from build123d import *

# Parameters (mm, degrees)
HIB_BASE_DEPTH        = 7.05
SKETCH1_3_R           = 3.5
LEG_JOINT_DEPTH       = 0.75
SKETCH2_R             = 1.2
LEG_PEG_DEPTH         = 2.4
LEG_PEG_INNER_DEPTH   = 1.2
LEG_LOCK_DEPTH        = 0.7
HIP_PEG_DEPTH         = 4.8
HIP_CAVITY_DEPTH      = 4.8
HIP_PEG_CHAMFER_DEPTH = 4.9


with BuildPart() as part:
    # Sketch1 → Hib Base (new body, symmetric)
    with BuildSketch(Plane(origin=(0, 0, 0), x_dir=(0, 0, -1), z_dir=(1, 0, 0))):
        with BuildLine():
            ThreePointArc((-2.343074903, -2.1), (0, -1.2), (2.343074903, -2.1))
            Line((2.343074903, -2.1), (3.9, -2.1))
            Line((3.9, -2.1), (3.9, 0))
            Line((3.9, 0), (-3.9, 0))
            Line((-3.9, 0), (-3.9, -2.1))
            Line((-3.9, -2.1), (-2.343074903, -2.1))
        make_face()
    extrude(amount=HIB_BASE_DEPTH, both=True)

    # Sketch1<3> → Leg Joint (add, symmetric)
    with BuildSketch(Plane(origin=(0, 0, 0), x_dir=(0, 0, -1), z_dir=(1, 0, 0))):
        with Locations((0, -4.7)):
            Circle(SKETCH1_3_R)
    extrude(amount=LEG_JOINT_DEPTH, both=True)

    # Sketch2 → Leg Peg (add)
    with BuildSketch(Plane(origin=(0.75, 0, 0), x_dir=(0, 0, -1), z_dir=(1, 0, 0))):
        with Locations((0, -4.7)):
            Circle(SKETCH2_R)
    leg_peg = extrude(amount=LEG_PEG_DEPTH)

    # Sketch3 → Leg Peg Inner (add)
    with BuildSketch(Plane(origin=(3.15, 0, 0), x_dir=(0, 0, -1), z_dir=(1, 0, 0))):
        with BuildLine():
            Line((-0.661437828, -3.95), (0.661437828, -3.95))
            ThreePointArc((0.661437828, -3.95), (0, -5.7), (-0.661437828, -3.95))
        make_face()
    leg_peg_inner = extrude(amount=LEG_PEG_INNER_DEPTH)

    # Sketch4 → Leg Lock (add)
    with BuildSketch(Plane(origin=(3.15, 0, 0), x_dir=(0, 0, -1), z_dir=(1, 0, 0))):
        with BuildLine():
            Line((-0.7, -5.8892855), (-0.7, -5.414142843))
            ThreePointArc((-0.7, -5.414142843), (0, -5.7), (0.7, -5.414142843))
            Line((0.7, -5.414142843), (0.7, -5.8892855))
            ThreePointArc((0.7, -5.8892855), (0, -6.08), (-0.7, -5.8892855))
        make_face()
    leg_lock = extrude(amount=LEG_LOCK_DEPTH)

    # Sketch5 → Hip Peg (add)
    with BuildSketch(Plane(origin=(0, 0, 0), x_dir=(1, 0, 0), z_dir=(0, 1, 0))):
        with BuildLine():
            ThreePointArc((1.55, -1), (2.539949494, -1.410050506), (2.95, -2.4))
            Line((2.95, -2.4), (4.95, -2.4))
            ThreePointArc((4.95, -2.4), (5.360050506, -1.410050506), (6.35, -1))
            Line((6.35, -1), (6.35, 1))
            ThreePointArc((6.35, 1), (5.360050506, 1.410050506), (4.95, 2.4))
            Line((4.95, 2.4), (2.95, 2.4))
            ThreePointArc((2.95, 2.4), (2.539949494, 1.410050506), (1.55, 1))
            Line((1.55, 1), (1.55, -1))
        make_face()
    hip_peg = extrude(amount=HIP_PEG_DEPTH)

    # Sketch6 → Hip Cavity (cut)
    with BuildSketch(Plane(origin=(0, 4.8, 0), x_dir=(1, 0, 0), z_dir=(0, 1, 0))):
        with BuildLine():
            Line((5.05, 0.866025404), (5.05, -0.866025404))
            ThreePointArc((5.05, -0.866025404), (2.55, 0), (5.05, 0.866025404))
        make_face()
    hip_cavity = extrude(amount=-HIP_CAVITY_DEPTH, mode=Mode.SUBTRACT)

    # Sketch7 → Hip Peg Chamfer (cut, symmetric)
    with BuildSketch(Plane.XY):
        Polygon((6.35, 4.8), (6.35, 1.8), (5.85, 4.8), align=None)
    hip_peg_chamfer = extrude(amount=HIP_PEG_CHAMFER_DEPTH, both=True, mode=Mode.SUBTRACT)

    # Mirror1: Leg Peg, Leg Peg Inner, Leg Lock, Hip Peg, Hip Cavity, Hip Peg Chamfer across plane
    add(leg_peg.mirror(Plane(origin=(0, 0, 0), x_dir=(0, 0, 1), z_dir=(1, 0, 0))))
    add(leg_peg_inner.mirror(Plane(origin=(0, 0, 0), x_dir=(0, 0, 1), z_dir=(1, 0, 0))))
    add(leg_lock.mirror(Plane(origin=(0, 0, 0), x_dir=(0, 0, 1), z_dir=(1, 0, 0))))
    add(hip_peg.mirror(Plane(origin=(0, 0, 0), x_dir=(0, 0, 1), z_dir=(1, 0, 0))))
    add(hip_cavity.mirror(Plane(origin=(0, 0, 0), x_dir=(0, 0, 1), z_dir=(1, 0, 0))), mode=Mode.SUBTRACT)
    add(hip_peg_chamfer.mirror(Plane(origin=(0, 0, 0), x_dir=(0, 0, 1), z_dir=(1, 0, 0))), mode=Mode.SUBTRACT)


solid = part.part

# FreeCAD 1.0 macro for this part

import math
import FreeCAD as App
import Part
import Sketcher
Q = App.Units.Quantity

doc = App.newDocument("Part")
body = doc.addObject("PartDesign::Body", "Body")

sketch1 = body.newObject("Sketcher::SketchObject", "Sketch")
sketch1.AttachmentSupport = (doc.getObject("YZ_Plane"), [""])
sketch1.MapMode = "FlatFace"
sketch1.addGeometry([
    Part.ArcOfCircle(Part.Circle(App.Vector(-4.7, 0, 0), App.Vector(0, 0, 1), 3.5), math.radians(-42), math.radians(42)),
    Part.LineSegment(App.Vector(-2.1, -2.3, 0), App.Vector(-2.1, -3.9, 0)),
    Part.LineSegment(App.Vector(-2.1, -3.9, 0), App.Vector(0, -3.9, 0)),
    Part.LineSegment(App.Vector(0, -3.9, 0), App.Vector(0, 3.9, 0)),
    Part.LineSegment(App.Vector(0, 3.9, 0), App.Vector(-2.1, 3.9, 0)),
    Part.LineSegment(App.Vector(-2.1, 3.9, 0), App.Vector(-2.1, 2.3, 0)),
], False)
sketch1.addConstraint([
    Sketcher.Constraint("Coincident", 0, 1, 1, 1),
    Sketcher.Constraint("Coincident", 1, 2, 2, 1),
    Sketcher.Constraint("Coincident", 2, 2, 3, 1),
    Sketcher.Constraint("Coincident", 3, 2, 4, 1),
    Sketcher.Constraint("Coincident", 4, 2, 5, 1),
    Sketcher.Constraint("Coincident", 5, 2, 0, 2),
    Sketcher.Constraint("Vertical", 1),
    Sketcher.Constraint("Horizontal", 2),
    Sketcher.Constraint("Vertical", 3),
    Sketcher.Constraint("Horizontal", 4),
    Sketcher.Constraint("Vertical", 5),
    Sketcher.Constraint("Symmetric", 2, 2, 3, 2, -1, 1),
    Sketcher.Constraint("Symmetric", 0, 1, 5, 2, -1),
    Sketcher.Constraint("Radius", 0, Q("3.5 mm")),
    Sketcher.Constraint("DistanceX", 2, 1, 2, 2, Q("2.1 mm")),
    Sketcher.Constraint("DistanceY", 3, 1, 3, 2, Q("7.8 mm")),
    Sketcher.Constraint("DistanceX", 0, 3, -1, 1, Q("4.7 mm")),
])
pad1 = body.newObject("PartDesign::Pad", "Pad")
pad1.Profile = sketch1
pad1.Length = 14.1
pad1.Midplane = True

sketch2 = body.newObject("Sketcher::SketchObject", "Sketch001")
sketch2.AttachmentSupport = (doc.getObject("YZ_Plane"), [""])
sketch2.MapMode = "FlatFace"
sketch2.addGeometry(Part.Circle(App.Vector(-4.7, 0, 0), App.Vector(0, 0, 1), 3.5), False)
sketch2.addConstraint([
    Sketcher.Constraint("PointOnObject", 0, 3, -1),
    Sketcher.Constraint("Diameter", 0, Q("7 mm")),
    Sketcher.Constraint("DistanceX", 0, 3, -1, 1, Q("4.7 mm")),
])
pad2 = body.newObject("PartDesign::Pad", "Pad001")
pad2.Profile = sketch2
pad2.Length = 1.5
pad2.Midplane = True

sketch3 = body.newObject("Sketcher::SketchObject", "Sketch002")
sketch3.AttachmentSupport = (doc.getObject("YZ_Plane"), [""])
sketch3.MapMode = "FlatFace"
sketch3.AttachmentOffset = App.Placement(App.Vector(0, 0, 0.75), App.Rotation())
sketch3.addGeometry(Part.Circle(App.Vector(-4.7, 0, 0), App.Vector(0, 0, 1), 1.2), False)
sketch3.addConstraint([
    Sketcher.Constraint("PointOnObject", 0, 3, -1),
    Sketcher.Constraint("Diameter", 0, Q("2.4 mm")),
    Sketcher.Constraint("DistanceX", 0, 3, -1, 1, Q("4.7 mm")),
])
pad3 = body.newObject("PartDesign::Pad", "Pad002")
pad3.Profile = sketch3
pad3.Length = 2.4

sketch4 = body.newObject("Sketcher::SketchObject", "Sketch003")
sketch4.AttachmentSupport = (doc.getObject("YZ_Plane"), [""])
sketch4.MapMode = "FlatFace"
sketch4.AttachmentOffset = App.Placement(App.Vector(0, 0, 3.15), App.Rotation())
sketch4.addGeometry([
    Part.LineSegment(App.Vector(-4, -0.7, 0), App.Vector(-4, 0.7, 0)),
    Part.ArcOfCircle(Part.Circle(App.Vector(-4.7, 0, 0), App.Vector(0, 0, 1), 1), math.radians(41), math.radians(319)),
], False)
sketch4.addConstraint([
    Sketcher.Constraint("Coincident", 0, 1, 1, 2),
    Sketcher.Constraint("Coincident", 1, 1, 0, 2),
    Sketcher.Constraint("Vertical", 0),
    Sketcher.Constraint("PointOnObject", 1, 3, -1),
    Sketcher.Constraint("Radius", 1, Q("1 mm")),
    Sketcher.Constraint("DistanceX", 1, 3, -1, 1, Q("4.7 mm")),
    Sketcher.Constraint("DistanceX", 0, 1, -1, 1, Q("3.95 mm")),
])
pad4 = body.newObject("PartDesign::Pad", "Pad003")
pad4.Profile = sketch4
pad4.Length = 1.2

sketch5 = body.newObject("Sketcher::SketchObject", "Sketch004")
sketch5.AttachmentSupport = (doc.getObject("YZ_Plane"), [""])
sketch5.MapMode = "FlatFace"
sketch5.AttachmentOffset = App.Placement(App.Vector(0, 0, 3.15), App.Rotation())
sketch5.addGeometry([
    Part.LineSegment(App.Vector(-5.41, 0.7, 0), App.Vector(-5.89, 0.7, 0)),
    Part.ArcOfCircle(Part.Circle(App.Vector(-4.7, 0, 0), App.Vector(0, 0, 1), 1.38), math.radians(150), math.radians(210)),
    Part.LineSegment(App.Vector(-5.89, -0.7, 0), App.Vector(-5.41, -0.7, 0)),
    Part.ArcOfCircle(Part.Circle(App.Vector(-4.7, 0, 0), App.Vector(0, 0, 1), 1), math.radians(136), math.radians(224)),
], False)
sketch5.addConstraint([
    Sketcher.Constraint("Coincident", 0, 2, 1, 1),
    Sketcher.Constraint("Coincident", 1, 2, 2, 1),
    Sketcher.Constraint("Coincident", 2, 2, 3, 2),
    Sketcher.Constraint("Coincident", 3, 1, 0, 1),
    Sketcher.Constraint("Horizontal", 0),
    Sketcher.Constraint("Horizontal", 2),
    Sketcher.Constraint("Coincident", 3, 3, 1, 3),
    Sketcher.Constraint("Symmetric", 0, 2, 1, 2, -1),
    Sketcher.Constraint("Radius", 3, Q("1 mm")),
    Sketcher.Constraint("Radius", 1, Q("1.38 mm")),
    Sketcher.Constraint("DistanceX", 1, 3, -1, 1, Q("4.7 mm")),
    Sketcher.Constraint("DistanceY", -1, 1, 0, 2, Q("0.7 mm")),
])
pad5 = body.newObject("PartDesign::Pad", "Pad004")
pad5.Profile = sketch5
pad5.Length = 0.7

sketch6 = body.newObject("Sketcher::SketchObject", "Sketch005")
sketch6.AttachmentSupport = (doc.getObject("XZ_Plane"), [""])
sketch6.MapMode = "FlatFace"
sketch6.addGeometry([
    Part.ArcOfCircle(Part.Circle(App.Vector(1.6, 2.4, 0), App.Vector(0, 0, 1), 1.4), math.radians(-90), math.radians(0)),
    Part.LineSegment(App.Vector(3, 2.4, 0), App.Vector(5, 2.4, 0)),
    Part.ArcOfCircle(Part.Circle(App.Vector(6.3, 2.4, 0), App.Vector(0, 0, 1), 1.4), math.radians(180), math.radians(270)),
    Part.LineSegment(App.Vector(6.3, 1, 0), App.Vector(6.3, -1, 0)),
    Part.ArcOfCircle(Part.Circle(App.Vector(6.3, -2.4, 0), App.Vector(0, 0, 1), 1.4), math.radians(90), math.radians(180)),
    Part.LineSegment(App.Vector(5, -2.4, 0), App.Vector(3, -2.4, 0)),
    Part.ArcOfCircle(Part.Circle(App.Vector(1.6, -2.4, 0), App.Vector(0, 0, 1), 1.4), math.radians(0), math.radians(90)),
    Part.LineSegment(App.Vector(1.6, -1, 0), App.Vector(1.6, 1, 0)),
], False)
sketch6.addConstraint([
    Sketcher.Constraint("Coincident", 0, 2, 1, 1),
    Sketcher.Constraint("Coincident", 1, 2, 2, 1),
    Sketcher.Constraint("Coincident", 2, 2, 3, 1),
    Sketcher.Constraint("Coincident", 3, 2, 4, 1),
    Sketcher.Constraint("Coincident", 4, 2, 5, 1),
    Sketcher.Constraint("Coincident", 5, 2, 6, 1),
    Sketcher.Constraint("Coincident", 6, 2, 7, 1),
    Sketcher.Constraint("Coincident", 7, 2, 0, 1),
    Sketcher.Constraint("Horizontal", 1),
    Sketcher.Constraint("Vertical", 3),
    Sketcher.Constraint("Horizontal", 5),
    Sketcher.Constraint("Vertical", 7),
    Sketcher.Constraint("Equal", 0, 2),
    Sketcher.Constraint("Equal", 2, 4),
    Sketcher.Constraint("Equal", 4, 6),
    Sketcher.Constraint("Symmetric", 2, 3, 4, 3, -1),
    Sketcher.Constraint("Symmetric", 0, 3, 6, 3, -1),
    Sketcher.Constraint("Horizontal", 0, 3, 2, 3),
    Sketcher.Constraint("Horizontal", 2, 3, 0, 2),
    Sketcher.Constraint("Horizontal", 6, 3, 4, 2),
    Sketcher.Constraint("Vertical", 4, 3, 2, 2),
    Sketcher.Constraint("Vertical", 0, 3, 6, 2),
    Sketcher.Constraint("Equal", 5, 3),
    Sketcher.Constraint("Radius", 0, Q("1.4 mm")),
    Sketcher.Constraint("DistanceX", 1, 1, 1, 2, Q("2 mm")),
    Sketcher.Constraint("DistanceX", -1, 1, 0, 3, Q("1.55 mm")),
])
pad6 = body.newObject("PartDesign::Pad", "Pad005")
pad6.Profile = sketch6
pad6.Length = 4.8
pad6.Reversed = True

sketch7 = body.newObject("Sketcher::SketchObject", "Sketch006")
sketch7.AttachmentSupport = (doc.getObject("XZ_Plane"), [""])
sketch7.MapMode = "FlatFace"
sketch7.AttachmentOffset = App.Placement(App.Vector(0, 0, -4.8), App.Rotation())
sketch7.addGeometry([
    Part.LineSegment(App.Vector(5, 0.9, 0), App.Vector(5, -0.9, 0)),
    Part.ArcOfCircle(Part.Circle(App.Vector(4, 0, 0), App.Vector(0, 0, 1), 1.4), math.radians(38), math.radians(322)),
], False)
sketch7.addConstraint([
    Sketcher.Constraint("Coincident", 0, 1, 1, 1),
    Sketcher.Constraint("Coincident", 1, 2, 0, 2),
    Sketcher.Constraint("Vertical", 0),
    Sketcher.Constraint("PointOnObject", 1, 3, -1),
    Sketcher.Constraint("Radius", 1, Q("1.4 mm")),
    Sketcher.Constraint("DistanceX", 1, 3, 0, 1, Q("1.1 mm")),
    Sketcher.Constraint("DistanceX", -1, 1, 1, 3, Q("3.95 mm")),
])
pocket1 = body.newObject("PartDesign::Pocket", "Pocket")
pocket1.Profile = sketch7
pocket1.Length = 4.8
pocket1.Reversed = True

sketch8 = body.newObject("Sketcher::SketchObject", "Sketch007")
sketch8.AttachmentSupport = (doc.getObject("XY_Plane"), [""])
sketch8.MapMode = "FlatFace"
sketch8.addGeometry([
    Part.LineSegment(App.Vector(6.3, 1.8, 0), App.Vector(6.3, 4.8, 0)),
    Part.LineSegment(App.Vector(6.3, 4.8, 0), App.Vector(5.8, 4.8, 0)),
    Part.LineSegment(App.Vector(5.8, 4.8, 0), App.Vector(6.3, 1.8, 0)),
], False)
sketch8.addConstraint([
    Sketcher.Constraint("Coincident", 0, 2, 1, 1),
    Sketcher.Constraint("Coincident", 1, 2, 2, 1),
    Sketcher.Constraint("Coincident", 2, 2, 0, 1),
    Sketcher.Constraint("Vertical", 0),
    Sketcher.Constraint("Horizontal", 1),
    Sketcher.Constraint("DistanceY", 0, 1, 0, 2, Q("3 mm")),
    Sketcher.Constraint("DistanceX", 1, 2, 1, 1, Q("0.5 mm")),
    Sketcher.Constraint("DistanceY", -1, 1, 0, 2, Q("4.8 mm")),
    Sketcher.Constraint("DistanceX", -1, 1, 0, 2, Q("6.35 mm")),
])
pocket2 = body.newObject("PartDesign::Pocket", "Pocket001")
pocket2.Profile = sketch8
pocket2.Length = 9.8
pocket2.Midplane = True
doc.recompute()

mirrored = body.newObject("PartDesign::Mirrored", "Mirrored")
mirrored.Originals = [pad3, pad4, pad5, pad6, pocket1, pocket2]
mirrored.MirrorPlane = (doc.getObject("YZ_Plane"), [""])
body.Tip = mirrored

doc.recompute()
